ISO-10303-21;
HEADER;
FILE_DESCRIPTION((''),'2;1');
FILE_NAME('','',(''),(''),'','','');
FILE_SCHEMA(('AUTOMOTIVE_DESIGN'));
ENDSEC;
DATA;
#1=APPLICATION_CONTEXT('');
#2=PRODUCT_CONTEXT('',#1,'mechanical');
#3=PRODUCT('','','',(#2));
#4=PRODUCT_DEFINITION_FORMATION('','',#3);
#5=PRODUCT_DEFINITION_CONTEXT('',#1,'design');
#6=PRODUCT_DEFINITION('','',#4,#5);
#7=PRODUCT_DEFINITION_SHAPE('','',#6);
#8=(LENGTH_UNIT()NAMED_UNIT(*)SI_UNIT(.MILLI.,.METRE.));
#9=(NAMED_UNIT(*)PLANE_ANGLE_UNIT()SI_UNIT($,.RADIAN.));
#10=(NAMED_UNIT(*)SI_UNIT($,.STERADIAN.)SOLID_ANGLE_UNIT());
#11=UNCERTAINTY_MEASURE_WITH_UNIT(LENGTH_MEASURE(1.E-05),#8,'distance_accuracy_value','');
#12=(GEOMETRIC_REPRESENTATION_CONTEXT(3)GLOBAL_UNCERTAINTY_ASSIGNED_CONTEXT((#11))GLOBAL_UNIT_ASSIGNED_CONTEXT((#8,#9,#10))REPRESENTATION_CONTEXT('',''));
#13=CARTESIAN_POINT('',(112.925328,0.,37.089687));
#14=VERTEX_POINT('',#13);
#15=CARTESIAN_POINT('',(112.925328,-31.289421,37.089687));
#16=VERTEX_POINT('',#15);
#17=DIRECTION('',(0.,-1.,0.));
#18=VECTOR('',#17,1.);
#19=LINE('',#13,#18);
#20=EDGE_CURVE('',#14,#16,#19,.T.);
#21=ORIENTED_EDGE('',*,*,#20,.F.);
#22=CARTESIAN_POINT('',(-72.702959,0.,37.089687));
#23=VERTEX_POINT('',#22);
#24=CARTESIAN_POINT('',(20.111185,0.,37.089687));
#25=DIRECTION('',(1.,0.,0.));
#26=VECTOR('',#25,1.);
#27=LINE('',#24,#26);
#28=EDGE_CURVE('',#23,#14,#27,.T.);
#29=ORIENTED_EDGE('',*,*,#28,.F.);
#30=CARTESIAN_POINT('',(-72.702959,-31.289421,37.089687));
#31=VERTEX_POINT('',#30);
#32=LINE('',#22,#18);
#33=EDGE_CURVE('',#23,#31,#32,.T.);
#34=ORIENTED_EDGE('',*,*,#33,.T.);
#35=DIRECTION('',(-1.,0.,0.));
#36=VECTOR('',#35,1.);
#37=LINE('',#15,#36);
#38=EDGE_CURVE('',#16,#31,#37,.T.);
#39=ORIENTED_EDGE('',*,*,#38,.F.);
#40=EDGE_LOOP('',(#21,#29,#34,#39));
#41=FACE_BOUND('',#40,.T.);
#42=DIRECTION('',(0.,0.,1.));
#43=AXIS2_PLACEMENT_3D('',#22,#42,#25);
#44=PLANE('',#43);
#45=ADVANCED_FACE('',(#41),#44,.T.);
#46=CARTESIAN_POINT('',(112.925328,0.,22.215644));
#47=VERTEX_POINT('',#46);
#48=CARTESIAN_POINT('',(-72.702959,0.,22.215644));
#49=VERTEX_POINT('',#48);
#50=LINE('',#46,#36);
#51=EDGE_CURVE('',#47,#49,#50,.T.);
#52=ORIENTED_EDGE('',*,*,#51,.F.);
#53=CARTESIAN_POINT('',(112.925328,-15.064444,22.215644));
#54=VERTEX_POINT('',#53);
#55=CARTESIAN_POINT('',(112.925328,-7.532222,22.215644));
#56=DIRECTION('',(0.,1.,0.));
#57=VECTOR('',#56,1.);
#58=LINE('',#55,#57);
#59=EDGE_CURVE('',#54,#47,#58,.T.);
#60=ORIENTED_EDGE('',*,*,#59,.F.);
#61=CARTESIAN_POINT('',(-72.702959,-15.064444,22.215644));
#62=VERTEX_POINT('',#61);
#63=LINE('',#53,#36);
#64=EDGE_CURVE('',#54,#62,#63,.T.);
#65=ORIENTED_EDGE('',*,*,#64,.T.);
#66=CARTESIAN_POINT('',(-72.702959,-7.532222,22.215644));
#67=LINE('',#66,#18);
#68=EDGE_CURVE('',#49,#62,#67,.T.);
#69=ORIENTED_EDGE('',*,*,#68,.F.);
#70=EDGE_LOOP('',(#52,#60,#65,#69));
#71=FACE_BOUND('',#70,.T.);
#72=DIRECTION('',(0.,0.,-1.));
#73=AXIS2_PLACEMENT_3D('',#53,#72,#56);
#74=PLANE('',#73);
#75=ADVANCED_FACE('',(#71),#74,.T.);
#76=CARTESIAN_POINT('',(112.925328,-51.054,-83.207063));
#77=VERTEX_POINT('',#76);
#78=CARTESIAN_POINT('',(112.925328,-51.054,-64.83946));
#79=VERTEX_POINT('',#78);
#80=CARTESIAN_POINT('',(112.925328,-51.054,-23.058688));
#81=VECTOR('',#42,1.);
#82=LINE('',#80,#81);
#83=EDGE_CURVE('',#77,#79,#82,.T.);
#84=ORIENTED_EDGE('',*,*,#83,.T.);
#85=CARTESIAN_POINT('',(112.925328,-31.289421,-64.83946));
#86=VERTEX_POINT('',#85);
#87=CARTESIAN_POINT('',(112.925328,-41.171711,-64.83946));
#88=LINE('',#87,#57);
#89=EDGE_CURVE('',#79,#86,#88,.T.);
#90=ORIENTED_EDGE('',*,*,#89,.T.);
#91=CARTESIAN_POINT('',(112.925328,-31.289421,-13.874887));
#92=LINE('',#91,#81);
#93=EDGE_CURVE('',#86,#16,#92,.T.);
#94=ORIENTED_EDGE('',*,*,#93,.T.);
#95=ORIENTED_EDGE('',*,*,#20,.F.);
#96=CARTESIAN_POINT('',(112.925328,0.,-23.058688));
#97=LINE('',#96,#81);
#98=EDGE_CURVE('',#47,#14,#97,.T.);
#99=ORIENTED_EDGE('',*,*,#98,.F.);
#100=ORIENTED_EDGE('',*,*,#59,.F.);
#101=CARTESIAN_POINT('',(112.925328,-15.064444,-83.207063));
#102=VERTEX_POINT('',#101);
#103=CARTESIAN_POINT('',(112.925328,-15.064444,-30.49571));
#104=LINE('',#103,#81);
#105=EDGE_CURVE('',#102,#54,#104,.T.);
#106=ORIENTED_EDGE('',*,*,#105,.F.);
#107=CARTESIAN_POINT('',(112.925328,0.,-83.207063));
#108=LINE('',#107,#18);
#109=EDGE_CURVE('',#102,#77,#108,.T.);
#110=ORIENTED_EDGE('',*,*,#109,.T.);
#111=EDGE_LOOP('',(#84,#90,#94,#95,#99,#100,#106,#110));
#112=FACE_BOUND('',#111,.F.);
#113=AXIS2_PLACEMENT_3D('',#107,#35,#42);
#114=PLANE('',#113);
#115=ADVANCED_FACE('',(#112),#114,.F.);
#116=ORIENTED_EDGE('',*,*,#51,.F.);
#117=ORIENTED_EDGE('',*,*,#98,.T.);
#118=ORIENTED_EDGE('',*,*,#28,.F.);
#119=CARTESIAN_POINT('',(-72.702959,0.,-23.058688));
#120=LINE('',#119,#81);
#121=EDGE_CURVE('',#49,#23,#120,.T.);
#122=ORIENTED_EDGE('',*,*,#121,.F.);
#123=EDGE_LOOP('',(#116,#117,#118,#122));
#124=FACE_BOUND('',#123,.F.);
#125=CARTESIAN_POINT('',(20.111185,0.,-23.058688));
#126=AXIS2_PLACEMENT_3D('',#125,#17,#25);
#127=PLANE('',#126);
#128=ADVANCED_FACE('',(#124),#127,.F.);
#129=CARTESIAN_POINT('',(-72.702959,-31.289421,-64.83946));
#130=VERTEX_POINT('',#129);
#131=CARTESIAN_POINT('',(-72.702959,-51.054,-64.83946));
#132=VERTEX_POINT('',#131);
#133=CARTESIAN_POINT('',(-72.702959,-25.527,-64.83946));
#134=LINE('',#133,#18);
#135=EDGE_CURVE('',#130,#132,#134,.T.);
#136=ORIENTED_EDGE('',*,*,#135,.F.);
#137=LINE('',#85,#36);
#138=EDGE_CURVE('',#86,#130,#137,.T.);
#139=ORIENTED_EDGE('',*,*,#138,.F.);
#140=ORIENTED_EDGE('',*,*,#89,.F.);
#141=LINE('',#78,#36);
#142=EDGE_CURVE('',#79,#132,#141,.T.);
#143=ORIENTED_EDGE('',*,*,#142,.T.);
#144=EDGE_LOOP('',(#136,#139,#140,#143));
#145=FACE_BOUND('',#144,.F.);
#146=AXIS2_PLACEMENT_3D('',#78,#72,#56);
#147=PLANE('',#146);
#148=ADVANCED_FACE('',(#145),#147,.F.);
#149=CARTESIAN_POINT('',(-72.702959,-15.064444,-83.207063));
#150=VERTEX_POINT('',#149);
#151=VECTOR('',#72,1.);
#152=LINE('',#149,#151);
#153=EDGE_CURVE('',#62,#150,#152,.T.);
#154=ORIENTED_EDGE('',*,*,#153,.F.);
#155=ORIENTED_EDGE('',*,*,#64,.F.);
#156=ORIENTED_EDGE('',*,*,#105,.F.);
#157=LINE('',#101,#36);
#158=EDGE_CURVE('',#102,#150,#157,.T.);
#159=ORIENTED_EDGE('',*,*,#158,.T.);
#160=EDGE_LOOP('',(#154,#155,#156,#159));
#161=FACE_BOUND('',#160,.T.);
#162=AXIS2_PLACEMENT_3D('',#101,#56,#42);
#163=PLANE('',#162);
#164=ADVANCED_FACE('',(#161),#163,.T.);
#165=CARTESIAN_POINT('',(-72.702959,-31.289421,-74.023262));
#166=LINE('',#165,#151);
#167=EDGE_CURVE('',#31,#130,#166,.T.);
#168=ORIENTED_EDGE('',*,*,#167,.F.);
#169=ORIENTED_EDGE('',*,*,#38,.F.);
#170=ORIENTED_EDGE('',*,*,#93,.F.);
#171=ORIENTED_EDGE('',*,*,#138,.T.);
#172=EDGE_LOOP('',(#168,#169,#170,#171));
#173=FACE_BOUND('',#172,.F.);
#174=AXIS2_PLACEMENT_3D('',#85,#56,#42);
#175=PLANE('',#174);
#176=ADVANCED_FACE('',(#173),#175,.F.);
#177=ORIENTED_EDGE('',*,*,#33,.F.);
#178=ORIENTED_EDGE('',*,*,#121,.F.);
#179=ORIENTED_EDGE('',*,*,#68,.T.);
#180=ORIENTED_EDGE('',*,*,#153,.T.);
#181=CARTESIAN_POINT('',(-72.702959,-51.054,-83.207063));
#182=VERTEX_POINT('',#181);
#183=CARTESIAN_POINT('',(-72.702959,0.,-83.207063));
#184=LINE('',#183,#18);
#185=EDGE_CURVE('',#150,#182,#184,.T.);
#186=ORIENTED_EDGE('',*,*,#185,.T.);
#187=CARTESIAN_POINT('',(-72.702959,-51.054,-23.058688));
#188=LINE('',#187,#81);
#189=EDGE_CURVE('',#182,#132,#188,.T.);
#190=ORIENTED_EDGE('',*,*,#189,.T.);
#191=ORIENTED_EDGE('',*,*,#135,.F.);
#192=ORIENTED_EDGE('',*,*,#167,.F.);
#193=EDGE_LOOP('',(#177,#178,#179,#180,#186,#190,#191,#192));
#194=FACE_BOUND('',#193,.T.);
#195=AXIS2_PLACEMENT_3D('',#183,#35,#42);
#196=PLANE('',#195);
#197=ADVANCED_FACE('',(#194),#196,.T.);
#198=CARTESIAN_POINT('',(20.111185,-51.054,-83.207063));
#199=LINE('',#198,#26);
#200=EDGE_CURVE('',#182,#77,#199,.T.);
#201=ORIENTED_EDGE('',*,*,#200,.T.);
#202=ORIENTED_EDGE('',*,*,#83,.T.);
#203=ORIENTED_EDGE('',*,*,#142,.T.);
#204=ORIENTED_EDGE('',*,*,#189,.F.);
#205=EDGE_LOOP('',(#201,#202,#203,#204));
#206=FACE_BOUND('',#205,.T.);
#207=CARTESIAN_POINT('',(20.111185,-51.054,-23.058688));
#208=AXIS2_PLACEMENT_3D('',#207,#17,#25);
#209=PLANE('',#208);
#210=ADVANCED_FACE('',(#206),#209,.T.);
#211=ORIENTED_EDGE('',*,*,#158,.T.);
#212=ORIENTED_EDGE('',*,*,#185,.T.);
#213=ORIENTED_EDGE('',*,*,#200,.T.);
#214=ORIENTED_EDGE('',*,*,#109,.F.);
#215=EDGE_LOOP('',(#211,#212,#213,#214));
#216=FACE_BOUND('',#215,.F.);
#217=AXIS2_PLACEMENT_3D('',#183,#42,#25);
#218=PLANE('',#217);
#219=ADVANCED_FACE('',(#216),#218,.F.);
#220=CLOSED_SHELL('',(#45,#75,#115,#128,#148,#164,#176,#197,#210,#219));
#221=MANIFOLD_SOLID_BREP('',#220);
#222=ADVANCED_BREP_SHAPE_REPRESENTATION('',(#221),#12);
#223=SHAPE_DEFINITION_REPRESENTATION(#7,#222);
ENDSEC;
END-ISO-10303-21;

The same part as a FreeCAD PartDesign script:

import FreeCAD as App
import Part
import Sketcher
Q = App.Units.Quantity

doc = App.newDocument("Part")
body = doc.addObject("PartDesign::Body", "Body")

# Sketch on XZ plane
sketch1 = body.newObject("Sketcher::SketchObject", "Sketch")
sketch1.AttachmentSupport = (doc.getObject("XZ_Plane"), [""])
sketch1.MapMode = "FlatFace"
sketch1.addGeometry(Part.LineSegment(App.Vector(-72.702959, 37.089687, 0), App.Vector(-72.702959, -83.207063, 0)), False)
sketch1.addGeometry(Part.LineSegment(App.Vector(-72.702959, -83.207063, 0), App.Vector(112.925328, -83.207063, 0)), False)
sketch1.addGeometry(Part.LineSegment(App.Vector(112.925328, -83.207063, 0), App.Vector(112.925328, 37.089687, 0)), False)
sketch1.addGeometry(Part.LineSegment(App.Vector(112.925328, 37.089687, 0), App.Vector(-72.702959, 37.089687, 0)), False)
sketch1.addConstraint(Sketcher.Constraint("Coincident", 0, 2, 1, 1))
sketch1.addConstraint(Sketcher.Constraint("Coincident", 1, 2, 2, 1))
sketch1.addConstraint(Sketcher.Constraint("Coincident", 2, 2, 3, 1))
sketch1.addConstraint(Sketcher.Constraint("Coincident", 3, 2, 0, 1))
sketch1.addConstraint(Sketcher.Constraint("Vertical", 0))
sketch1.addConstraint(Sketcher.Constraint("Horizontal", 1))
sketch1.addConstraint(Sketcher.Constraint("Vertical", 2))
sketch1.addConstraint(Sketcher.Constraint("Horizontal", 3))
sketch1.addConstraint(Sketcher.Constraint("DistanceY", 0, 2, 0, 1, Q("120.29675 mm")))
sketch1.addConstraint(Sketcher.Constraint("DistanceX", 1, 1, 1, 2, Q("185.628287 mm")))
sketch1.addConstraint(Sketcher.Constraint("DistanceX", 0, 2, -1, 1, Q("72.702959 mm")))
sketch1.addConstraint(Sketcher.Constraint("DistanceY", 0, 2, -1, 1, Q("83.207063 mm")))
pad1 = body.newObject("PartDesign::Pad", "Pad")
pad1.Profile = sketch1
pad1.Length = Q("2.01 in")

# Sketch on YZ plane
sketch2 = body.newObject("Sketcher::SketchObject", "Sketch001")
sketch2.AttachmentSupport = (doc.getObject("YZ_Plane"), [""])
sketch2.MapMode = "FlatFace"
sketch2.AttachmentOffset = App.Placement(App.Vector(0, 0, 112.925328), App.Rotation())
sketch2.addGeometry(Part.LineSegment(App.Vector(-51.054, 37.089687, 0), App.Vector(-51.054, -64.83946, 0)), False)
sketch2.addGeometry(Part.LineSegment(App.Vector(-51.054, -64.83946, 0), App.Vector(-31.289421, -64.83946, 0)), False)
sketch2.addGeometry(Part.LineSegment(App.Vector(-31.289421, -64.83946, 0), App.Vector(-31.289421, 37.089687, 0)), False)
sketch2.addGeometry(Part.LineSegment(App.Vector(-31.289421, 37.089687, 0), App.Vector(-51.054, 37.089687, 0)), False)
sketch2.addConstraint(Sketcher.Constraint("Coincident", 0, 2, 1, 1))
sketch2.addConstraint(Sketcher.Constraint("Coincident", 1, 2, 2, 1))
sketch2.addConstraint(Sketcher.Constraint("Coincident", 2, 2, 3, 1))
sketch2.addConstraint(Sketcher.Constraint("Coincident", 3, 2, 0, 1))
sketch2.addConstraint(Sketcher.Constraint("Vertical", 0))
sketch2.addConstraint(Sketcher.Constraint("Horizontal", 1))
sketch2.addConstraint(Sketcher.Constraint("Vertical", 2))
sketch2.addConstraint(Sketcher.Constraint("Horizontal", 3))
sketch2.addConstraint(Sketcher.Constraint("DistanceX", 0, 2, -1, 1, Q("2.01 in")))
sketch2.addConstraint(Sketcher.Constraint("DistanceX", 1, 1, 1, 2, Q("19.764579 mm")))
sketch2.addConstraint(Sketcher.Constraint("DistanceY", 0, 2, 0, 1, Q("101.929147 mm")))
sketch2.addConstraint(Sketcher.Constraint("DistanceY", 0, 2, -1, 1, Q("64.83946 mm")))
pocket1 = body.newObject("PartDesign::Pocket", "Pocket")
pocket1.Profile = sketch2
pocket1.Length = Q("8.67 in")

# Sketch on YZ plane
sketch3 = body.newObject("Sketcher::SketchObject", "Sketch002")
sketch3.AttachmentSupport = (doc.getObject("YZ_Plane"), [""])
sketch3.MapMode = "FlatFace"
sketch3.AttachmentOffset = App.Placement(App.Vector(0, 0, 112.925328), App.Rotation())
sketch3.addGeometry(Part.LineSegment(App.Vector(-15.064444, 22.215644, 0), App.Vector(-15.064444, -83.207063, 0)), False)
sketch3.addGeometry(Part.LineSegment(App.Vector(-15.064444, -83.207063, 0), App.Vector(0, -83.207063, 0)), False)
sketch3.addGeometry(Part.LineSegment(App.Vector(0, -83.207063, 0), App.Vector(0, 22.215644, 0)), False)
sketch3.addGeometry(Part.LineSegment(App.Vector(0, 22.215644, 0), App.Vector(-15.064444, 22.215644, 0)), False)
sketch3.addConstraint(Sketcher.Constraint("Coincident", 0, 2, 1, 1))
sketch3.addConstraint(Sketcher.Constraint("Coincident", 1, 2, 2, 1))
sketch3.addConstraint(Sketcher.Constraint("Coincident", 2, 2, 3, 1))
sketch3.addConstraint(Sketcher.Constraint("Coincident", 3, 2, 0, 1))
sketch3.addConstraint(Sketcher.Constraint("Vertical", 0))
sketch3.addConstraint(Sketcher.Constraint("Horizontal", 1))
sketch3.addConstraint(Sketcher.Constraint("Vertical", 2))
sketch3.addConstraint(Sketcher.Constraint("Horizontal", 3))
sketch3.addConstraint(Sketcher.Constraint("PointOnObject", 1, 2, -2))
sketch3.addConstraint(Sketcher.Constraint("DistanceX", 1, 1, 1, 2, Q("15.064444 mm")))
sketch3.addConstraint(Sketcher.Constraint("DistanceY", 0, 2, 0, 1, Q("105.422707 mm")))
sketch3.addConstraint(Sketcher.Constraint("DistanceY", 0, 2, -1, 1, Q("83.207063 mm")))
pocket2 = body.newObject("PartDesign::Pocket", "Pocket001")
pocket2.Profile = sketch3
pocket2.Length = Q("7.53 in")

doc.recompute()
